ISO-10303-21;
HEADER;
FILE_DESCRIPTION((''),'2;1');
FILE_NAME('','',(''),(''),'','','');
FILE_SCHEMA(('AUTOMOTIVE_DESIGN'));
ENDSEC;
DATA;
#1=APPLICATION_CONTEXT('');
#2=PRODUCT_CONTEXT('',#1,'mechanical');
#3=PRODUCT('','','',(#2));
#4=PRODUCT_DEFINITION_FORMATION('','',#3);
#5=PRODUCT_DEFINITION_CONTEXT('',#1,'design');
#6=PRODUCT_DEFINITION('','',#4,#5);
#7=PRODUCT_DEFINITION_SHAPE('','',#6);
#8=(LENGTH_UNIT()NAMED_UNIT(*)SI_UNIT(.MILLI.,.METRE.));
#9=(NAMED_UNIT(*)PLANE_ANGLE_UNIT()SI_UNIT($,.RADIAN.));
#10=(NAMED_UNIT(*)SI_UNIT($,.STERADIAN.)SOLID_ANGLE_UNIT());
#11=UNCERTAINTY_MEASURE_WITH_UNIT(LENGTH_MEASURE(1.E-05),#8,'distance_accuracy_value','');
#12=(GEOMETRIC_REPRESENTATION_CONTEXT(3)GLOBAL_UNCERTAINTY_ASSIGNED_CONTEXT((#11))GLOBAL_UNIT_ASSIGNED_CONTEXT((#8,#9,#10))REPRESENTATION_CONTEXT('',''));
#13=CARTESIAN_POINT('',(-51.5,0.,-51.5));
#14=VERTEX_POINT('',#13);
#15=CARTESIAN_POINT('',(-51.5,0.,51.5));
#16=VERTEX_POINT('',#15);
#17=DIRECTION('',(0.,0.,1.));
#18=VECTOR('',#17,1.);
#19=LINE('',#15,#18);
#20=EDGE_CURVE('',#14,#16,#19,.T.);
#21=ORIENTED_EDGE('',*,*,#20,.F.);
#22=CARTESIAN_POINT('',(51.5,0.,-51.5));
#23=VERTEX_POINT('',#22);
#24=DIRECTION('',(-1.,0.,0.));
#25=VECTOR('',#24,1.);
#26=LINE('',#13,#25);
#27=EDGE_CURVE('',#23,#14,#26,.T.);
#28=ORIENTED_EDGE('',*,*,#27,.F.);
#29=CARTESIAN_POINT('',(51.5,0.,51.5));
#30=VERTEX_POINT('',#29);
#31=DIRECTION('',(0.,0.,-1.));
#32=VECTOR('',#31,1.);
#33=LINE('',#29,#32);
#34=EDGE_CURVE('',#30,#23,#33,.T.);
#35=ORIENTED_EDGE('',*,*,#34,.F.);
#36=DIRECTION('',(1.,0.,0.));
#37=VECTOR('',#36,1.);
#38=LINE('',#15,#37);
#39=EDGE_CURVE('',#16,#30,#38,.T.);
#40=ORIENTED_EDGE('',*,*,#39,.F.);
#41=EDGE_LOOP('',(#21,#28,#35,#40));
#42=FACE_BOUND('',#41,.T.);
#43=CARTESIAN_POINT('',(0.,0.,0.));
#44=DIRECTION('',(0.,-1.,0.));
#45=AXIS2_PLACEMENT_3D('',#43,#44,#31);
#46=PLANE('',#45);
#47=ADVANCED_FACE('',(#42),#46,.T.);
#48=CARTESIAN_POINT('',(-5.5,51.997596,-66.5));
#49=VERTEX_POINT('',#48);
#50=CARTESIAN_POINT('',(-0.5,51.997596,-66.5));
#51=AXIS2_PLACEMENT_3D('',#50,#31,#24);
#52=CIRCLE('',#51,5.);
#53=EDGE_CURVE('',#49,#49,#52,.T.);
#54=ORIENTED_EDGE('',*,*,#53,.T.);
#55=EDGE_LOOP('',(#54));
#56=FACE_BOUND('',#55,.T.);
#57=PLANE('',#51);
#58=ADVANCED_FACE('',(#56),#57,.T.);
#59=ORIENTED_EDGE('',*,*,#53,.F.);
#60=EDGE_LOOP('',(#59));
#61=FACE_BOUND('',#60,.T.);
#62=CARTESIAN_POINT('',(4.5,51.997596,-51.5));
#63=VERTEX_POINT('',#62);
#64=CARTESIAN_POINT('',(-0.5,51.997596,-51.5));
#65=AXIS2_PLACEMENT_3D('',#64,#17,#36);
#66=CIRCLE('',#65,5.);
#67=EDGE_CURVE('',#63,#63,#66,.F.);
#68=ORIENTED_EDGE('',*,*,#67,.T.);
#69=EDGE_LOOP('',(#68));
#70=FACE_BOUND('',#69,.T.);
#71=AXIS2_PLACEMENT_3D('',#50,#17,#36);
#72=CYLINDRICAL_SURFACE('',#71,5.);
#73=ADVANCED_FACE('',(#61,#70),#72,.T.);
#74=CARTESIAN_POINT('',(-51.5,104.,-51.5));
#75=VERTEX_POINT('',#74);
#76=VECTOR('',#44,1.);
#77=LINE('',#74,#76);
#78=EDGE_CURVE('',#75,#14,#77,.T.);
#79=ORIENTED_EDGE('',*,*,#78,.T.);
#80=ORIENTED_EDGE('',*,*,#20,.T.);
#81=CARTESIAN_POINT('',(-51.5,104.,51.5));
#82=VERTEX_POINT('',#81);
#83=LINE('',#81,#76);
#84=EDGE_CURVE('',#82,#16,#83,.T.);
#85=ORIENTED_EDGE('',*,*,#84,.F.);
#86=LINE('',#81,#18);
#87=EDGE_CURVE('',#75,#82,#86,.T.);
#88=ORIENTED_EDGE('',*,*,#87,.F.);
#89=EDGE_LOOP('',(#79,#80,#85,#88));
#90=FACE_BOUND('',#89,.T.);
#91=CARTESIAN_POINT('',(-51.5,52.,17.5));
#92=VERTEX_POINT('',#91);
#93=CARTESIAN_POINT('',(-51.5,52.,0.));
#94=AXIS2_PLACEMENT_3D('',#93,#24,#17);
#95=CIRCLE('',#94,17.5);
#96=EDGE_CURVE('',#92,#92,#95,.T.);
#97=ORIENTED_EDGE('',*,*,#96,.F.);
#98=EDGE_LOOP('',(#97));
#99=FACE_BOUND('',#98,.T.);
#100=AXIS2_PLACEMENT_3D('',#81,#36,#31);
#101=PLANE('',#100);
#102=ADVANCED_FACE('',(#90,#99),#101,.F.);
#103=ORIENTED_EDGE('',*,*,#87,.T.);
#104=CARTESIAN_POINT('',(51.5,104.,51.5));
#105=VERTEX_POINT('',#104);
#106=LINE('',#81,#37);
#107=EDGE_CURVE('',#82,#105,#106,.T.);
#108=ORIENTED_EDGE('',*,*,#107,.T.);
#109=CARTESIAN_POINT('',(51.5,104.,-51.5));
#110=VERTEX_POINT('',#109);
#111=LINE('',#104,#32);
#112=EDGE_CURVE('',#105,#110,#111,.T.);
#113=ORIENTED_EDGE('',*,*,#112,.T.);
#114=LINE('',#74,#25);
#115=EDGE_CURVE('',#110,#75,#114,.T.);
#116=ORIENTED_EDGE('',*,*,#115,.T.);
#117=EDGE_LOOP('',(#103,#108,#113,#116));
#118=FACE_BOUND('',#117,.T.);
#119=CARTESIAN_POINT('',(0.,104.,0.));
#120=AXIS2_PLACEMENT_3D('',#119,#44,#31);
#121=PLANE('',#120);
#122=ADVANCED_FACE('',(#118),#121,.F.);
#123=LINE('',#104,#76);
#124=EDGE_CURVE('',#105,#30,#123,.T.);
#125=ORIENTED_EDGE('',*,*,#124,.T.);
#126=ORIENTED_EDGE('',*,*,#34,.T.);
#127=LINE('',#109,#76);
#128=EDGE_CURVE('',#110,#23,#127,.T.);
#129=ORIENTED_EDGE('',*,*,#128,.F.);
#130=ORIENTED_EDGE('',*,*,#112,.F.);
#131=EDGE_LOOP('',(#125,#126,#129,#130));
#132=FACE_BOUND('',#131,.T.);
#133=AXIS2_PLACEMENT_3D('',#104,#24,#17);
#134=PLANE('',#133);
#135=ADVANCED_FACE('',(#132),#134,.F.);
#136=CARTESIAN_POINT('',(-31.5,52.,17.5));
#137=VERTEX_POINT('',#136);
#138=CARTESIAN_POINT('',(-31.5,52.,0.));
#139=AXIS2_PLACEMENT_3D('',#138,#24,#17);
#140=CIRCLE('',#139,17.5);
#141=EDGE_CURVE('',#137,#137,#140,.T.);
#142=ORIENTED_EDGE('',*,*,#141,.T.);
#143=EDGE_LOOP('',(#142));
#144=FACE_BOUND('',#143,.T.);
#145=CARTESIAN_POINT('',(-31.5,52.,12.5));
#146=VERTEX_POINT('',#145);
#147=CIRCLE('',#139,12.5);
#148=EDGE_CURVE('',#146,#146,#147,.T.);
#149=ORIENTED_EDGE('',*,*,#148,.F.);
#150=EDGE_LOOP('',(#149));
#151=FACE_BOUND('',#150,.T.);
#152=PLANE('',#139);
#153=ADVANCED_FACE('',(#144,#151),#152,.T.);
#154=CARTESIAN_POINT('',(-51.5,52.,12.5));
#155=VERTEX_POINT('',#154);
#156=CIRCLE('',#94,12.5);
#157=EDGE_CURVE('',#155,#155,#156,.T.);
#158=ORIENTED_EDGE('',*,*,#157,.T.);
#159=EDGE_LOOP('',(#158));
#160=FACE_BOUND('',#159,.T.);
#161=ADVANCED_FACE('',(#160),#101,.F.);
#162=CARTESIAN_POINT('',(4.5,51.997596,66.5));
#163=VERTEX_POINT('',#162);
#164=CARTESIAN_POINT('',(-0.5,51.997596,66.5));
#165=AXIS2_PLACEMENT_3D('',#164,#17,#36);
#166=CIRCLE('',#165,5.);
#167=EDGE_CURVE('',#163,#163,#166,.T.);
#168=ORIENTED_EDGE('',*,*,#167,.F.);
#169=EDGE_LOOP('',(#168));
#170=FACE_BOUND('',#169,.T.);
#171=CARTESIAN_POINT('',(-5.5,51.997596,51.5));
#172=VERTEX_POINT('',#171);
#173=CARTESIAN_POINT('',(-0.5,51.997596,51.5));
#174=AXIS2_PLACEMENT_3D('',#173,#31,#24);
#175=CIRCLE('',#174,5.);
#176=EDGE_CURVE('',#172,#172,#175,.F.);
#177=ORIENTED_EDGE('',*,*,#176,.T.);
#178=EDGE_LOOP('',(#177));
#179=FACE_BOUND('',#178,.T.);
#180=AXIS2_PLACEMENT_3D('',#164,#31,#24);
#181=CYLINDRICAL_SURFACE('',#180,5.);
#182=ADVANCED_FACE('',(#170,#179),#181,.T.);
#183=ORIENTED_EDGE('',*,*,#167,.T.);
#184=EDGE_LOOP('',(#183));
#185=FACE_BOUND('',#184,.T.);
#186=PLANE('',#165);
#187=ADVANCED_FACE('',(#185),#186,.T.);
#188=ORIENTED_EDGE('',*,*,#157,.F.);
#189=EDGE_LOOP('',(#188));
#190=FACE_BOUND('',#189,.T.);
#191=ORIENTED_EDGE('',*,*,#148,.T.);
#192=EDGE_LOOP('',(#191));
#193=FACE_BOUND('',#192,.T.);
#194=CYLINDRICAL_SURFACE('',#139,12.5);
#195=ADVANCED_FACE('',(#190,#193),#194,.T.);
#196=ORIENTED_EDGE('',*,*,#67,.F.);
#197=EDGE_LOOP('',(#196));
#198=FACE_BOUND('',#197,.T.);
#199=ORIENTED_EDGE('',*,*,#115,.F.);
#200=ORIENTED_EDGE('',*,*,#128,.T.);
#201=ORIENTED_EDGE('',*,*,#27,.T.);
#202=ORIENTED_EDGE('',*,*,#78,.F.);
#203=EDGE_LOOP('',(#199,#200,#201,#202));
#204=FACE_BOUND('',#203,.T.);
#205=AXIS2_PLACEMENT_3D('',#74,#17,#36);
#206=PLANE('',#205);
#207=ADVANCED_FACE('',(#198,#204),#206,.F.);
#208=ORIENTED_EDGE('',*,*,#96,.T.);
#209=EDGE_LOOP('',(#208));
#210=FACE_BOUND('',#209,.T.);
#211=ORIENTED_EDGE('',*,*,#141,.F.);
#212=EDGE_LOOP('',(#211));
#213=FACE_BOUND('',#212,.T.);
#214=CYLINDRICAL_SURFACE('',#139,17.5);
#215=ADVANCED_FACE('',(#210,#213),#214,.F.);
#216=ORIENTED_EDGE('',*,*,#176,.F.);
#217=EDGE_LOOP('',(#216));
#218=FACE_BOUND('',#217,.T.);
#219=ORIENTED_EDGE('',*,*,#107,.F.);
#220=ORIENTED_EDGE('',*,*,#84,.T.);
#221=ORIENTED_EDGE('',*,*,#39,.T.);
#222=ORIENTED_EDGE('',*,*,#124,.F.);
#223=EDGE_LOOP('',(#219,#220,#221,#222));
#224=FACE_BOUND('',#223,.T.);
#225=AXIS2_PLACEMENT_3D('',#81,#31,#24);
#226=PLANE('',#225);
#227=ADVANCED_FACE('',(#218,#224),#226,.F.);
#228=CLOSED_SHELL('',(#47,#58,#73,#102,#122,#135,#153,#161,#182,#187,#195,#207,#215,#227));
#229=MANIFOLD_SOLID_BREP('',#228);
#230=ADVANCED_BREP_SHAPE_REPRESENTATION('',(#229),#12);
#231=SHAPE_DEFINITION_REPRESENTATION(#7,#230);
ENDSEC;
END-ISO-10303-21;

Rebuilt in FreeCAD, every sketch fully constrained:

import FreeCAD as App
import Part
import Sketcher

V = App.Vector
Q = App.Units.Quantity

doc = App.newDocument("Part")
body = doc.addObject("PartDesign::Body", "Body")

# Sketch on XZ plane
sketch1 = body.newObject("Sketcher::SketchObject", "Sketch")
sketch1.AttachmentSupport = (doc.getObject("XZ_Plane"), [""])
sketch1.MapMode = "FlatFace"
sketch1.addGeometry([
    Part.LineSegment(V(-52, -52, 0), V(-52, 52, 0)),
    Part.LineSegment(V(-52, 52, 0), V(52, 52, 0)),
    Part.LineSegment(V(52, 52, 0), V(52, -52, 0)),
    Part.LineSegment(V(52, -52, 0), V(-52, -52, 0)),
], False)
sketch1.addConstraint([
    Sketcher.Constraint("Coincident", 0, 2, 1, 1),
    Sketcher.Constraint("Coincident", 1, 2, 2, 1),
    Sketcher.Constraint("Coincident", 2, 2, 3, 1),
    Sketcher.Constraint("Coincident", 3, 2, 0, 1),
    Sketcher.Constraint("Vertical", 0),
    Sketcher.Constraint("Horizontal", 1),
    Sketcher.Constraint("Vertical", 2),
    Sketcher.Constraint("Horizontal", 3),
    Sketcher.Constraint("Symmetric", 0, 2, 2, 2, -1, 1),
    Sketcher.Constraint("Equal", 3, 0),
    Sketcher.Constraint("DistanceX", 1, 1, 1, 2, Q("103 mm")),
])
pad1 = body.newObject("PartDesign::Pad", "Pad")
pad1.Profile = sketch1
pad1.Length = 104
pad1.Reversed = True

# Sketch on XY plane
sketch2 = body.newObject("Sketcher::SketchObject", "Sketch001")
sketch2.AttachmentSupport = (doc.getObject("XY_Plane"), [""])
sketch2.MapMode = "FlatFace"
sketch2.AttachmentOffset = App.Placement(V(0, 0, 51.5), App.Rotation())
sketch2.addGeometry(Part.Circle(V(0, 52, 0), V(0, 0, 1), 5), False)
sketch2.addConstraint([
    Sketcher.Constraint("Diameter", 0, Q("10 mm")),
    Sketcher.Constraint("DistanceX", 0, 3, -1, 1, Q("0.5 mm")),
    Sketcher.Constraint("DistanceY", -1, 1, 0, 3, Q("51.997596 mm")),
])
pad2 = body.newObject("PartDesign::Pad", "Pad001")
pad2.Profile = sketch2
pad2.Length = 15

# Sketch on XY plane
sketch3 = body.newObject("Sketcher::SketchObject", "Sketch002")
sketch3.AttachmentSupport = (doc.getObject("XY_Plane"), [""])
sketch3.MapMode = "FlatFace"
sketch3.AttachmentOffset = App.Placement(V(0, 0, -66.5), App.Rotation())
sketch3.addGeometry(Part.Circle(V(0, 52, 0), V(0, 0, 1), 5), False)
sketch3.addConstraint([
    Sketcher.Constraint("Diameter", 0, Q("10 mm")),
    Sketcher.Constraint("DistanceX", 0, 3, -1, 1, Q("0.5 mm")),
    Sketcher.Constraint("DistanceY", -1, 1, 0, 3, Q("51.997596 mm")),
])
pad3 = body.newObject("PartDesign::Pad", "Pad002")
pad3.Profile = sketch3
pad3.Length = 15

# Sketch on YZ plane
sketch4 = body.newObject("Sketcher::SketchObject", "Sketch003")
sketch4.AttachmentSupport = (doc.getObject("YZ_Plane"), [""])
sketch4.MapMode = "FlatFace"
sketch4.AttachmentOffset = App.Placement(V(0, 0, -51.5), App.Rotation())
sketch4.addGeometry([
    Part.Circle(V(52, 0, 0), V(0, 0, 1), 18),
    Part.Circle(V(52, 0, 0), V(0, 0, 1), 12),
], False)
sketch4.addConstraint([
    Sketcher.Constraint("Coincident", 1, 3, 0, 3),
    Sketcher.Constraint("PointOnObject", 0, 3, -1),
    Sketcher.Constraint("Diameter", 0, Q("35 mm")),
    Sketcher.Constraint("Diameter", 1, Q("25 mm")),
    Sketcher.Constraint("DistanceX", -1, 1, 0, 3, Q("52 mm")),
])
pocket1 = body.newObject("PartDesign::Pocket", "Pocket")
pocket1.Profile = sketch4
pocket1.Length = 20
pocket1.Reversed = True

doc.recompute()
